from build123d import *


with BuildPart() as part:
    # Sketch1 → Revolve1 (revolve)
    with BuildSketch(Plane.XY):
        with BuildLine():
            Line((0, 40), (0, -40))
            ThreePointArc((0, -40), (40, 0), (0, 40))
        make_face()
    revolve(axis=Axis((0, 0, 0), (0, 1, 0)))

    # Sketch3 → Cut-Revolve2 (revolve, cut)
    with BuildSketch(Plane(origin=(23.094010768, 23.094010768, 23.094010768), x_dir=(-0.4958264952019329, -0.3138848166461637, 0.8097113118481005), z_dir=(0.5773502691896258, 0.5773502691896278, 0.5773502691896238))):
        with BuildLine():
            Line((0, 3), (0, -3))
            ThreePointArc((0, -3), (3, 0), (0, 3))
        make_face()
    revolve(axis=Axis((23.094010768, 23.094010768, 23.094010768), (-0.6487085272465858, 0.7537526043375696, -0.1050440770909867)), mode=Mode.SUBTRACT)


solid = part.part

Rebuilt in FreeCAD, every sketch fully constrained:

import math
import FreeCAD as App
import Part
import Sketcher

V = App.Vector

doc = App.newDocument("Part")
body = doc.addObject("PartDesign::Body", "Body")

# Sketch on XY plane
sketch1 = body.newObject("Sketcher::SketchObject", "Sketch")
sketch1.AttachmentSupport = (doc.getObject("XY_Plane"), [""])
sketch1.MapMode = "FlatFace"
sketch1.addGeometry(Part.LineSegment(V(0, 40, 0), V(0, -40, 0)), False)
sketch1.addGeometry(Part.ArcOfCircle(Part.Circle(V(0, 0, 0), V(0, 0, 1), 40), math.radians(-90), math.radians(90)), False)
sketch1.addConstraint(Sketcher.Constraint("Coincident", 0, 1, 1, 2))
sketch1.addConstraint(Sketcher.Constraint("Coincident", 1, 1, 0, 2))
sketch1.addConstraint(Sketcher.Constraint("Vertical", 0))
sketch1.addConstraint(Sketcher.Constraint("Coincident", 1, 3, -1, 1))
sketch1.addConstraint(Sketcher.Constraint("PointOnObject", 0, 1, -2))
sketch1.addConstraint(Sketcher.Constraint("Radius", 1, 40.0))
revolution = body.newObject("PartDesign::Revolution", "Revolution")
revolution.Profile = sketch1
revolution.ReferenceAxis = (sketch1, ["V_Axis"])
revolution.Angle = 360

# Sketch on an angled plane
sketch2 = body.newObject("Sketcher::SketchObject", "Sketch001")
sketch2.Placement = App.Placement(V(23.094011, 23.094011, 23.094011), App.Rotation(V(-0.495826495, -0.313884817, 0.809711312), V(0.648708527, -0.753752604, 0.105044077), V(0.577350269, 0.577350269, 0.577350269), "ZXY"))
sketch2.addGeometry(Part.LineSegment(V(0, 3, 0), V(0, -3, 0)), False)
sketch2.addGeometry(Part.ArcOfCircle(Part.Circle(V(0, 0, 0), V(0, 0, 1), 3), math.radians(-90), math.radians(90)), False)
sketch2.addConstraint(Sketcher.Constraint("Coincident", 0, 1, 1, 2))
sketch2.addConstraint(Sketcher.Constraint("Coincident", 1, 1, 0, 2))
sketch2.addConstraint(Sketcher.Constraint("Vertical", 0))
sketch2.addConstraint(Sketcher.Constraint("Coincident", 1, 3, -1, 1))
sketch2.addConstraint(Sketcher.Constraint("PointOnObject", 0, 1, -2))
sketch2.addConstraint(Sketcher.Constraint("Radius", 1, 3.0))
groove = body.newObject("PartDesign::Groove", "Groove")
groove.Profile = sketch2
groove.ReferenceAxis = (sketch2, ["V_Axis"])
groove.Angle = 360

doc.recompute()
